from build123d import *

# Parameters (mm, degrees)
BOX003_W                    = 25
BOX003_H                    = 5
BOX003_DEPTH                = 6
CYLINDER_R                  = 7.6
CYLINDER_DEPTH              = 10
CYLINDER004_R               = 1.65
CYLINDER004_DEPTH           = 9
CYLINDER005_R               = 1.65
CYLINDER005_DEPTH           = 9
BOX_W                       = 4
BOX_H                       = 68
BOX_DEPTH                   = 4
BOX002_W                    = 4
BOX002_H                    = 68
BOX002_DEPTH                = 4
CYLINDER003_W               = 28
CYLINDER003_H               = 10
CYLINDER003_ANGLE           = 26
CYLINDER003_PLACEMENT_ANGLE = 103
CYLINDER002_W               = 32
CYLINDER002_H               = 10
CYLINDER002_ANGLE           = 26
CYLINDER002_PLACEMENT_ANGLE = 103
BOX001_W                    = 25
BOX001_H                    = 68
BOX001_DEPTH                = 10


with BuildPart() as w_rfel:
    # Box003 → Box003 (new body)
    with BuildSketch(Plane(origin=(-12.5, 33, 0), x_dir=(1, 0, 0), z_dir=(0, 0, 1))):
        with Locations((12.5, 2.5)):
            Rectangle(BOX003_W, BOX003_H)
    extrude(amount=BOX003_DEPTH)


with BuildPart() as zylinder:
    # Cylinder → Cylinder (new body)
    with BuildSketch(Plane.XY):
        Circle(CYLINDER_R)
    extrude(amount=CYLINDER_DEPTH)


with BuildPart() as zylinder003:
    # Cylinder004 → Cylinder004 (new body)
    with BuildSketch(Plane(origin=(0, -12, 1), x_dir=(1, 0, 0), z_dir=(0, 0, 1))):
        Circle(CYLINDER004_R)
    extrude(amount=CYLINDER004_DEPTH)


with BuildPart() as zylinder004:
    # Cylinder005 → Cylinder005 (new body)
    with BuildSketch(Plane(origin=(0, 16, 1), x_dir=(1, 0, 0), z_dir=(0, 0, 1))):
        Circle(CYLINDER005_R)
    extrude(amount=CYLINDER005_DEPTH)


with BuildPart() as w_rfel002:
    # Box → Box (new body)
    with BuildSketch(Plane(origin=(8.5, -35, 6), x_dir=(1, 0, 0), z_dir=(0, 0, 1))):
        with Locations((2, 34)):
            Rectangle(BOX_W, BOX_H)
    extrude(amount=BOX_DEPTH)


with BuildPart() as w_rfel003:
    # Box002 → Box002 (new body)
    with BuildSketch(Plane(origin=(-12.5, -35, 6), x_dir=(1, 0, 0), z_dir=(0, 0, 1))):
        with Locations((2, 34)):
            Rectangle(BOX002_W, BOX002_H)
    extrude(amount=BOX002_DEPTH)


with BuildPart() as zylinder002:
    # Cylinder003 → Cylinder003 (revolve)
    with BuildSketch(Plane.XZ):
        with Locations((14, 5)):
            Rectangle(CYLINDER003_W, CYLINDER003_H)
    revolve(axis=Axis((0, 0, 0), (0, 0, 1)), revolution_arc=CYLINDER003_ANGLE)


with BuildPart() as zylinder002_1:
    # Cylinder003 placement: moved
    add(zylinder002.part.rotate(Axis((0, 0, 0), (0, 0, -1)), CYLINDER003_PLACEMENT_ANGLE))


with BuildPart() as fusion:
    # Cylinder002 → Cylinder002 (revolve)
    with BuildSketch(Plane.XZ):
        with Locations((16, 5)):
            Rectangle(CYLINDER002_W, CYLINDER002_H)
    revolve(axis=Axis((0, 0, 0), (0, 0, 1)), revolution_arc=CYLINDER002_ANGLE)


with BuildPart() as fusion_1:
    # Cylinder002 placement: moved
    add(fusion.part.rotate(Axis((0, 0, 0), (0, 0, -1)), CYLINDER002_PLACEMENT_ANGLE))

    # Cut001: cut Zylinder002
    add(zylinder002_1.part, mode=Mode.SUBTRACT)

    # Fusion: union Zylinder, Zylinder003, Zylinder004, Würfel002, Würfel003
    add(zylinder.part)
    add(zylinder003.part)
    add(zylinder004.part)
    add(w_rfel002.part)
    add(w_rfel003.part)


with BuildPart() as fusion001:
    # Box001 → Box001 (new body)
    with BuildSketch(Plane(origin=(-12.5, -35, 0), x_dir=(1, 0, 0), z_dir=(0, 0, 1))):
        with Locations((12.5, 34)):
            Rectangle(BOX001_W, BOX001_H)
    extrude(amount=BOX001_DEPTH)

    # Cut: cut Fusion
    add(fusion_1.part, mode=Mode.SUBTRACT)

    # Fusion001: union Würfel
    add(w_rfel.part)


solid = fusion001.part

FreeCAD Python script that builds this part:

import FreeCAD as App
import Part
import Sketcher

V = App.Vector


def add_polygon(sketch, points):
    """Adds a closed chain of lines whose ends are joined by coincident constraints."""
    first, n = sketch.GeometryCount, len(points)
    for a, b in zip(points, points[1:] + points[:1]):
        sketch.addGeometry(Part.LineSegment(App.Vector(*a, 0), App.Vector(*b, 0)), False)
    for i in range(n):
        sketch.addConstraint(Sketcher.Constraint("Coincident", first + i, 2, first + (i + 1) % n, 1))

doc = App.newDocument("Part")
params = doc.addObject("Spreadsheet::Sheet", "Params")
for row, (alias, value) in enumerate([
    ("sketch1_width", "25 mm"),
    ("sketch1_height", "5 mm"),
    ("pad1_length", "6 mm"),
    ("sketch2_diameter", "15.2 mm"),
    ("pad2_length", "10 mm"),
    ("sketch3_diameter", "3.3 mm"),
    ("pad3_length", "9 mm"),
    ("sketch4_diameter", "3.3 mm"),
    ("pad4_length", "9 mm"),
    ("sketch5_width", "4 mm"),
    ("sketch5_height", "68 mm"),
    ("pad5_length", "4 mm"),
    ("sketch6_width", "4 mm"),
    ("sketch6_height", "68 mm"),
    ("pad6_length", "4 mm"),
    ("sketch7_width", "28 mm"),
    ("sketch7_height", "10 mm"),
    ("revolution_angle", "26 deg"),
    ("sketch8_width", "32 mm"),
    ("sketch8_height", "10 mm"),
    ("revolution2_angle", "26 deg"),
    ("sketch9_width", "25 mm"),
    ("sketch9_height", "68 mm"),
    ("pad7_length", "10 mm"),
], start=1):
    params.set(f"A{row}", alias)
    params.set(f"B{row}", "=" + value)
    params.setAlias(f"B{row}", alias)

body = doc.addObject("PartDesign::Body", "Body")

sketch1 = body.newObject("Sketcher::SketchObject", "Sketch")
sketch1.AttachmentSupport = (doc.getObject("XY_Plane"), [""])
sketch1.MapMode = "FlatFace"
add_polygon(sketch1, [(-12.5, 38), (-12.5, 33), (12.5, 33), (12.5, 38)])
sketch1.addConstraint([
    Sketcher.Constraint("Vertical", 0),
    Sketcher.Constraint("Horizontal", 1),
    Sketcher.Constraint("Vertical", 2),
    Sketcher.Constraint("Horizontal", 3),
    Sketcher.Constraint("DistanceX", 1, 1, 1, 2, 25.0),
    Sketcher.Constraint("DistanceY", 0, 2, 0, 1, 5.0),
    Sketcher.Constraint("DistanceY", -1, 1, 0, 2, 33.0),
    Sketcher.Constraint("DistanceX", 0, 2, -1, 1, 12.5),
])
sketch1.setExpression("Constraints[8]", "Params.sketch1_width")
sketch1.setExpression("Constraints[9]", "Params.sketch1_height")
pad1 = body.newObject("PartDesign::Pad", "Pad")
pad1.Profile = sketch1
pad1.setExpression("Length", "Params.pad1_length")
body2 = doc.addObject("PartDesign::Body", "Body001")

sketch2 = body2.newObject("Sketcher::SketchObject", "Sketch001")
sketch2.AttachmentSupport = (doc.getObject("XY_Plane001"), [""])
sketch2.MapMode = "FlatFace"
sketch2.addGeometry(Part.Circle(V(0, 0, 0), V(0, 0, 1), 7.6), False)
sketch2.addConstraint([
    Sketcher.Constraint("Coincident", 0, 3, -1, 1),
    Sketcher.Constraint("Diameter", 0, 15.2),
])
sketch2.setExpression("Constraints[1]", "Params.sketch2_diameter")
pad2 = body2.newObject("PartDesign::Pad", "Pad001")
pad2.Profile = sketch2
pad2.setExpression("Length", "Params.pad2_length")
body3 = doc.addObject("PartDesign::Body", "Body002")

sketch3 = body3.newObject("Sketcher::SketchObject", "Sketch002")
sketch3.AttachmentSupport = (doc.getObject("XY_Plane002"), [""])
sketch3.MapMode = "FlatFace"
sketch3.AttachmentOffset = App.Placement(V(0, 0, 1), App.Rotation())
sketch3.addGeometry(Part.Circle(V(0, -12, 0), V(0, 0, 1), 1.65), False)
sketch3.addConstraint([
    Sketcher.Constraint("PointOnObject", 0, 3, -2),
    Sketcher.Constraint("Diameter", 0, 3.3),
    Sketcher.Constraint("DistanceY", 0, 3, -1, 1, 12.0),
])
sketch3.setExpression("Constraints[1]", "Params.sketch3_diameter")
pad3 = body3.newObject("PartDesign::Pad", "Pad002")
pad3.Profile = sketch3
pad3.setExpression("Length", "Params.pad3_length")
body4 = doc.addObject("PartDesign::Body", "Body003")

sketch4 = body4.newObject("Sketcher::SketchObject", "Sketch003")
sketch4.AttachmentSupport = (doc.getObject("XY_Plane003"), [""])
sketch4.MapMode = "FlatFace"
sketch4.AttachmentOffset = App.Placement(V(0, 0, 1), App.Rotation())
sketch4.addGeometry(Part.Circle(V(0, 16, 0), V(0, 0, 1), 1.65), False)
sketch4.addConstraint([
    Sketcher.Constraint("PointOnObject", 0, 3, -2),
    Sketcher.Constraint("Diameter", 0, 3.3),
    Sketcher.Constraint("DistanceY", -1, 1, 0, 3, 16.0),
])
sketch4.setExpression("Constraints[1]", "Params.sketch4_diameter")
pad4 = body4.newObject("PartDesign::Pad", "Pad003")
pad4.Profile = sketch4
pad4.setExpression("Length", "Params.pad4_length")
body5 = doc.addObject("PartDesign::Body", "Body004")

sketch5 = body5.newObject("Sketcher::SketchObject", "Sketch004")
sketch5.AttachmentSupport = (doc.getObject("XY_Plane004"), [""])
sketch5.MapMode = "FlatFace"
sketch5.AttachmentOffset = App.Placement(V(0, 0, 6), App.Rotation())
add_polygon(sketch5, [(8.5, 33), (8.5, -35), (12.5, -35), (12.5, 33)])
sketch5.addConstraint([
    Sketcher.Constraint("Vertical", 0),
    Sketcher.Constraint("Horizontal", 1),
    Sketcher.Constraint("Vertical", 2),
    Sketcher.Constraint("Horizontal", 3),
    Sketcher.Constraint("DistanceX", 1, 1, 1, 2, 4.0),
    Sketcher.Constraint("DistanceY", 0, 2, 0, 1, 68.0),
    Sketcher.Constraint("DistanceY", 0, 2, -1, 1, 35.0),
    Sketcher.Constraint("DistanceX", -1, 1, 0, 2, 8.5),
])
sketch5.setExpression("Constraints[8]", "Params.sketch5_width")
sketch5.setExpression("Constraints[9]", "Params.sketch5_height")
pad5 = body5.newObject("PartDesign::Pad", "Pad004")
pad5.Profile = sketch5
pad5.setExpression("Length", "Params.pad5_length")
body6 = doc.addObject("PartDesign::Body", "Body005")

sketch6 = body6.newObject("Sketcher::SketchObject", "Sketch005")
sketch6.AttachmentSupport = (doc.getObject("XY_Plane005"), [""])
sketch6.MapMode = "FlatFace"
sketch6.AttachmentOffset = App.Placement(V(0, 0, 6), App.Rotation())
add_polygon(sketch6, [(-12.5, 33), (-12.5, -35), (-8.5, -35), (-8.5, 33)])
sketch6.addConstraint([
    Sketcher.Constraint("Vertical", 0),
    Sketcher.Constraint("Horizontal", 1),
    Sketcher.Constraint("Vertical", 2),
    Sketcher.Constraint("Horizontal", 3),
    Sketcher.Constraint("DistanceX", 1, 1, 1, 2, 4.0),
    Sketcher.Constraint("DistanceY", 0, 2, 0, 1, 68.0),
    Sketcher.Constraint("DistanceY", 0, 2, -1, 1, 35.0),
    Sketcher.Constraint("DistanceX", 0, 2, -1, 1, 12.5),
])
sketch6.setExpression("Constraints[8]", "Params.sketch6_width")
sketch6.setExpression("Constraints[9]", "Params.sketch6_height")
pad6 = body6.newObject("PartDesign::Pad", "Pad005")
pad6.Profile = sketch6
pad6.setExpression("Length", "Params.pad6_length")
body7 = doc.addObject("PartDesign::Body", "Body006")

sketch7 = body7.newObject("Sketcher::SketchObject", "Sketch006")
sketch7.AttachmentSupport = (doc.getObject("XZ_Plane006"), [""])
sketch7.MapMode = "FlatFace"
add_polygon(sketch7, [(0, 10), (0, 0), (28, 0), (28, 10)])
sketch7.addConstraint([
    Sketcher.Constraint("Vertical", 0),
    Sketcher.Constraint("Horizontal", 1),
    Sketcher.Constraint("Vertical", 2),
    Sketcher.Constraint("Horizontal", 3),
    Sketcher.Constraint("Coincident", 0, 2, -1, 1),
    Sketcher.Constraint("DistanceX", 1, 1, 1, 2, 28.0),
    Sketcher.Constraint("DistanceY", 0, 2, 0, 1, 10.0),
])
sketch7.setExpression("Constraints[9]", "Params.sketch7_width")
sketch7.setExpression("Constraints[10]", "Params.sketch7_height")
revolution = body7.newObject("PartDesign::Revolution", "Revolution")
revolution.Profile = sketch7
revolution.ReferenceAxis = (sketch7, ["V_Axis"])
revolution.setExpression("Angle", "Params.revolution_angle")
body8 = doc.addObject("PartDesign::Body", "Body007")
doc.recompute()

body7.Placement = App.Placement(V(0, 0, 0), App.Rotation(V(0, 0, -1), 103))
boolean = body8.newObject("PartDesign::Boolean", "Boolean")
boolean.Type = "Fuse"
boolean.addObjects([body7])
body9 = doc.addObject("PartDesign::Body", "Body008")

sketch8 = body9.newObject("Sketcher::SketchObject", "Sketch007")
sketch8.AttachmentSupport = (doc.getObject("XZ_Plane008"), [""])
sketch8.MapMode = "FlatFace"
add_polygon(sketch8, [(0, 10), (0, 0), (32, 0), (32, 10)])
sketch8.addConstraint([
    Sketcher.Constraint("Vertical", 0),
    Sketcher.Constraint("Horizontal", 1),
    Sketcher.Constraint("Vertical", 2),
    Sketcher.Constraint("Horizontal", 3),
    Sketcher.Constraint("Coincident", 0, 2, -1, 1),
    Sketcher.Constraint("DistanceX", 1, 1, 1, 2, 32.0),
    Sketcher.Constraint("DistanceY", 0, 2, 0, 1, 10.0),
])
sketch8.setExpression("Constraints[9]", "Params.sketch8_width")
sketch8.setExpression("Constraints[10]", "Params.sketch8_height")
revolution2 = body9.newObject("PartDesign::Revolution", "Revolution001")
revolution2.Profile = sketch8
revolution2.ReferenceAxis = (sketch8, ["V_Axis"])
revolution2.setExpression("Angle", "Params.revolution2_angle")
body10 = doc.addObject("PartDesign::Body", "Body009")
body10.AllowCompound = True
doc.recompute()

body9.Placement = App.Placement(V(0, 0, 0), App.Rotation(V(0, 0, -1), 103))
boolean2 = body10.newObject("PartDesign::Boolean", "Boolean001")
boolean2.Type = "Fuse"
boolean2.addObjects([body9])
doc.recompute()

boolean3 = body10.newObject("PartDesign::Boolean", "Boolean002")
boolean3.Type = "Cut"
boolean3.addObjects([body8])
doc.recompute()

boolean4 = body10.newObject("PartDesign::Boolean", "Boolean003")
boolean4.Type = "Fuse"
boolean4.addObjects([body2])
doc.recompute()

boolean5 = body10.newObject("PartDesign::Boolean", "Boolean004")
boolean5.Type = "Fuse"
boolean5.addObjects([body3])
doc.recompute()

boolean6 = body10.newObject("PartDesign::Boolean", "Boolean005")
boolean6.Type = "Fuse"
boolean6.addObjects([body4])
doc.recompute()

boolean7 = body10.newObject("PartDesign::Boolean", "Boolean006")
boolean7.Type = "Fuse"
boolean7.addObjects([body5])
doc.recompute()

boolean8 = body10.newObject("PartDesign::Boolean", "Boolean007")
boolean8.Type = "Fuse"
boolean8.addObjects([body6])
body11 = doc.addObject("PartDesign::Body", "Body010")

sketch9 = body11.newObject("Sketcher::SketchObject", "Sketch008")
sketch9.AttachmentSupport = (doc.getObject("XY_Plane010"), [""])
sketch9.MapMode = "FlatFace"
add_polygon(sketch9, [(-12.5, 33), (-12.5, -35), (12.5, -35), (12.5, 33)])
sketch9.addConstraint([
    Sketcher.Constraint("Vertical", 0),
    Sketcher.Constraint("Horizontal", 1),
    Sketcher.Constraint("Vertical", 2),
    Sketcher.Constraint("Horizontal", 3),
    Sketcher.Constraint("DistanceX", 1, 1, 1, 2, 25.0),
    Sketcher.Constraint("DistanceY", 0, 2, 0, 1, 68.0),
    Sketcher.Constraint("DistanceY", 0, 2, -1, 1, 35.0),
    Sketcher.Constraint("DistanceX", 0, 2, -1, 1, 12.5),
])
sketch9.setExpression("Constraints[8]", "Params.sketch9_width")
sketch9.setExpression("Constraints[9]", "Params.sketch9_height")
pad7 = body11.newObject("PartDesign::Pad", "Pad006")
pad7.Profile = sketch9
pad7.setExpression("Length", "Params.pad7_length")
doc.recompute()

boolean9 = body11.newObject("PartDesign::Boolean", "Boolean008")
boolean9.Type = "Cut"
boolean9.addObjects([body10])
doc.recompute()

boolean10 = body11.newObject("PartDesign::Boolean", "Boolean009")
boolean10.Type = "Fuse"
boolean10.addObjects([body])

doc.recompute()
